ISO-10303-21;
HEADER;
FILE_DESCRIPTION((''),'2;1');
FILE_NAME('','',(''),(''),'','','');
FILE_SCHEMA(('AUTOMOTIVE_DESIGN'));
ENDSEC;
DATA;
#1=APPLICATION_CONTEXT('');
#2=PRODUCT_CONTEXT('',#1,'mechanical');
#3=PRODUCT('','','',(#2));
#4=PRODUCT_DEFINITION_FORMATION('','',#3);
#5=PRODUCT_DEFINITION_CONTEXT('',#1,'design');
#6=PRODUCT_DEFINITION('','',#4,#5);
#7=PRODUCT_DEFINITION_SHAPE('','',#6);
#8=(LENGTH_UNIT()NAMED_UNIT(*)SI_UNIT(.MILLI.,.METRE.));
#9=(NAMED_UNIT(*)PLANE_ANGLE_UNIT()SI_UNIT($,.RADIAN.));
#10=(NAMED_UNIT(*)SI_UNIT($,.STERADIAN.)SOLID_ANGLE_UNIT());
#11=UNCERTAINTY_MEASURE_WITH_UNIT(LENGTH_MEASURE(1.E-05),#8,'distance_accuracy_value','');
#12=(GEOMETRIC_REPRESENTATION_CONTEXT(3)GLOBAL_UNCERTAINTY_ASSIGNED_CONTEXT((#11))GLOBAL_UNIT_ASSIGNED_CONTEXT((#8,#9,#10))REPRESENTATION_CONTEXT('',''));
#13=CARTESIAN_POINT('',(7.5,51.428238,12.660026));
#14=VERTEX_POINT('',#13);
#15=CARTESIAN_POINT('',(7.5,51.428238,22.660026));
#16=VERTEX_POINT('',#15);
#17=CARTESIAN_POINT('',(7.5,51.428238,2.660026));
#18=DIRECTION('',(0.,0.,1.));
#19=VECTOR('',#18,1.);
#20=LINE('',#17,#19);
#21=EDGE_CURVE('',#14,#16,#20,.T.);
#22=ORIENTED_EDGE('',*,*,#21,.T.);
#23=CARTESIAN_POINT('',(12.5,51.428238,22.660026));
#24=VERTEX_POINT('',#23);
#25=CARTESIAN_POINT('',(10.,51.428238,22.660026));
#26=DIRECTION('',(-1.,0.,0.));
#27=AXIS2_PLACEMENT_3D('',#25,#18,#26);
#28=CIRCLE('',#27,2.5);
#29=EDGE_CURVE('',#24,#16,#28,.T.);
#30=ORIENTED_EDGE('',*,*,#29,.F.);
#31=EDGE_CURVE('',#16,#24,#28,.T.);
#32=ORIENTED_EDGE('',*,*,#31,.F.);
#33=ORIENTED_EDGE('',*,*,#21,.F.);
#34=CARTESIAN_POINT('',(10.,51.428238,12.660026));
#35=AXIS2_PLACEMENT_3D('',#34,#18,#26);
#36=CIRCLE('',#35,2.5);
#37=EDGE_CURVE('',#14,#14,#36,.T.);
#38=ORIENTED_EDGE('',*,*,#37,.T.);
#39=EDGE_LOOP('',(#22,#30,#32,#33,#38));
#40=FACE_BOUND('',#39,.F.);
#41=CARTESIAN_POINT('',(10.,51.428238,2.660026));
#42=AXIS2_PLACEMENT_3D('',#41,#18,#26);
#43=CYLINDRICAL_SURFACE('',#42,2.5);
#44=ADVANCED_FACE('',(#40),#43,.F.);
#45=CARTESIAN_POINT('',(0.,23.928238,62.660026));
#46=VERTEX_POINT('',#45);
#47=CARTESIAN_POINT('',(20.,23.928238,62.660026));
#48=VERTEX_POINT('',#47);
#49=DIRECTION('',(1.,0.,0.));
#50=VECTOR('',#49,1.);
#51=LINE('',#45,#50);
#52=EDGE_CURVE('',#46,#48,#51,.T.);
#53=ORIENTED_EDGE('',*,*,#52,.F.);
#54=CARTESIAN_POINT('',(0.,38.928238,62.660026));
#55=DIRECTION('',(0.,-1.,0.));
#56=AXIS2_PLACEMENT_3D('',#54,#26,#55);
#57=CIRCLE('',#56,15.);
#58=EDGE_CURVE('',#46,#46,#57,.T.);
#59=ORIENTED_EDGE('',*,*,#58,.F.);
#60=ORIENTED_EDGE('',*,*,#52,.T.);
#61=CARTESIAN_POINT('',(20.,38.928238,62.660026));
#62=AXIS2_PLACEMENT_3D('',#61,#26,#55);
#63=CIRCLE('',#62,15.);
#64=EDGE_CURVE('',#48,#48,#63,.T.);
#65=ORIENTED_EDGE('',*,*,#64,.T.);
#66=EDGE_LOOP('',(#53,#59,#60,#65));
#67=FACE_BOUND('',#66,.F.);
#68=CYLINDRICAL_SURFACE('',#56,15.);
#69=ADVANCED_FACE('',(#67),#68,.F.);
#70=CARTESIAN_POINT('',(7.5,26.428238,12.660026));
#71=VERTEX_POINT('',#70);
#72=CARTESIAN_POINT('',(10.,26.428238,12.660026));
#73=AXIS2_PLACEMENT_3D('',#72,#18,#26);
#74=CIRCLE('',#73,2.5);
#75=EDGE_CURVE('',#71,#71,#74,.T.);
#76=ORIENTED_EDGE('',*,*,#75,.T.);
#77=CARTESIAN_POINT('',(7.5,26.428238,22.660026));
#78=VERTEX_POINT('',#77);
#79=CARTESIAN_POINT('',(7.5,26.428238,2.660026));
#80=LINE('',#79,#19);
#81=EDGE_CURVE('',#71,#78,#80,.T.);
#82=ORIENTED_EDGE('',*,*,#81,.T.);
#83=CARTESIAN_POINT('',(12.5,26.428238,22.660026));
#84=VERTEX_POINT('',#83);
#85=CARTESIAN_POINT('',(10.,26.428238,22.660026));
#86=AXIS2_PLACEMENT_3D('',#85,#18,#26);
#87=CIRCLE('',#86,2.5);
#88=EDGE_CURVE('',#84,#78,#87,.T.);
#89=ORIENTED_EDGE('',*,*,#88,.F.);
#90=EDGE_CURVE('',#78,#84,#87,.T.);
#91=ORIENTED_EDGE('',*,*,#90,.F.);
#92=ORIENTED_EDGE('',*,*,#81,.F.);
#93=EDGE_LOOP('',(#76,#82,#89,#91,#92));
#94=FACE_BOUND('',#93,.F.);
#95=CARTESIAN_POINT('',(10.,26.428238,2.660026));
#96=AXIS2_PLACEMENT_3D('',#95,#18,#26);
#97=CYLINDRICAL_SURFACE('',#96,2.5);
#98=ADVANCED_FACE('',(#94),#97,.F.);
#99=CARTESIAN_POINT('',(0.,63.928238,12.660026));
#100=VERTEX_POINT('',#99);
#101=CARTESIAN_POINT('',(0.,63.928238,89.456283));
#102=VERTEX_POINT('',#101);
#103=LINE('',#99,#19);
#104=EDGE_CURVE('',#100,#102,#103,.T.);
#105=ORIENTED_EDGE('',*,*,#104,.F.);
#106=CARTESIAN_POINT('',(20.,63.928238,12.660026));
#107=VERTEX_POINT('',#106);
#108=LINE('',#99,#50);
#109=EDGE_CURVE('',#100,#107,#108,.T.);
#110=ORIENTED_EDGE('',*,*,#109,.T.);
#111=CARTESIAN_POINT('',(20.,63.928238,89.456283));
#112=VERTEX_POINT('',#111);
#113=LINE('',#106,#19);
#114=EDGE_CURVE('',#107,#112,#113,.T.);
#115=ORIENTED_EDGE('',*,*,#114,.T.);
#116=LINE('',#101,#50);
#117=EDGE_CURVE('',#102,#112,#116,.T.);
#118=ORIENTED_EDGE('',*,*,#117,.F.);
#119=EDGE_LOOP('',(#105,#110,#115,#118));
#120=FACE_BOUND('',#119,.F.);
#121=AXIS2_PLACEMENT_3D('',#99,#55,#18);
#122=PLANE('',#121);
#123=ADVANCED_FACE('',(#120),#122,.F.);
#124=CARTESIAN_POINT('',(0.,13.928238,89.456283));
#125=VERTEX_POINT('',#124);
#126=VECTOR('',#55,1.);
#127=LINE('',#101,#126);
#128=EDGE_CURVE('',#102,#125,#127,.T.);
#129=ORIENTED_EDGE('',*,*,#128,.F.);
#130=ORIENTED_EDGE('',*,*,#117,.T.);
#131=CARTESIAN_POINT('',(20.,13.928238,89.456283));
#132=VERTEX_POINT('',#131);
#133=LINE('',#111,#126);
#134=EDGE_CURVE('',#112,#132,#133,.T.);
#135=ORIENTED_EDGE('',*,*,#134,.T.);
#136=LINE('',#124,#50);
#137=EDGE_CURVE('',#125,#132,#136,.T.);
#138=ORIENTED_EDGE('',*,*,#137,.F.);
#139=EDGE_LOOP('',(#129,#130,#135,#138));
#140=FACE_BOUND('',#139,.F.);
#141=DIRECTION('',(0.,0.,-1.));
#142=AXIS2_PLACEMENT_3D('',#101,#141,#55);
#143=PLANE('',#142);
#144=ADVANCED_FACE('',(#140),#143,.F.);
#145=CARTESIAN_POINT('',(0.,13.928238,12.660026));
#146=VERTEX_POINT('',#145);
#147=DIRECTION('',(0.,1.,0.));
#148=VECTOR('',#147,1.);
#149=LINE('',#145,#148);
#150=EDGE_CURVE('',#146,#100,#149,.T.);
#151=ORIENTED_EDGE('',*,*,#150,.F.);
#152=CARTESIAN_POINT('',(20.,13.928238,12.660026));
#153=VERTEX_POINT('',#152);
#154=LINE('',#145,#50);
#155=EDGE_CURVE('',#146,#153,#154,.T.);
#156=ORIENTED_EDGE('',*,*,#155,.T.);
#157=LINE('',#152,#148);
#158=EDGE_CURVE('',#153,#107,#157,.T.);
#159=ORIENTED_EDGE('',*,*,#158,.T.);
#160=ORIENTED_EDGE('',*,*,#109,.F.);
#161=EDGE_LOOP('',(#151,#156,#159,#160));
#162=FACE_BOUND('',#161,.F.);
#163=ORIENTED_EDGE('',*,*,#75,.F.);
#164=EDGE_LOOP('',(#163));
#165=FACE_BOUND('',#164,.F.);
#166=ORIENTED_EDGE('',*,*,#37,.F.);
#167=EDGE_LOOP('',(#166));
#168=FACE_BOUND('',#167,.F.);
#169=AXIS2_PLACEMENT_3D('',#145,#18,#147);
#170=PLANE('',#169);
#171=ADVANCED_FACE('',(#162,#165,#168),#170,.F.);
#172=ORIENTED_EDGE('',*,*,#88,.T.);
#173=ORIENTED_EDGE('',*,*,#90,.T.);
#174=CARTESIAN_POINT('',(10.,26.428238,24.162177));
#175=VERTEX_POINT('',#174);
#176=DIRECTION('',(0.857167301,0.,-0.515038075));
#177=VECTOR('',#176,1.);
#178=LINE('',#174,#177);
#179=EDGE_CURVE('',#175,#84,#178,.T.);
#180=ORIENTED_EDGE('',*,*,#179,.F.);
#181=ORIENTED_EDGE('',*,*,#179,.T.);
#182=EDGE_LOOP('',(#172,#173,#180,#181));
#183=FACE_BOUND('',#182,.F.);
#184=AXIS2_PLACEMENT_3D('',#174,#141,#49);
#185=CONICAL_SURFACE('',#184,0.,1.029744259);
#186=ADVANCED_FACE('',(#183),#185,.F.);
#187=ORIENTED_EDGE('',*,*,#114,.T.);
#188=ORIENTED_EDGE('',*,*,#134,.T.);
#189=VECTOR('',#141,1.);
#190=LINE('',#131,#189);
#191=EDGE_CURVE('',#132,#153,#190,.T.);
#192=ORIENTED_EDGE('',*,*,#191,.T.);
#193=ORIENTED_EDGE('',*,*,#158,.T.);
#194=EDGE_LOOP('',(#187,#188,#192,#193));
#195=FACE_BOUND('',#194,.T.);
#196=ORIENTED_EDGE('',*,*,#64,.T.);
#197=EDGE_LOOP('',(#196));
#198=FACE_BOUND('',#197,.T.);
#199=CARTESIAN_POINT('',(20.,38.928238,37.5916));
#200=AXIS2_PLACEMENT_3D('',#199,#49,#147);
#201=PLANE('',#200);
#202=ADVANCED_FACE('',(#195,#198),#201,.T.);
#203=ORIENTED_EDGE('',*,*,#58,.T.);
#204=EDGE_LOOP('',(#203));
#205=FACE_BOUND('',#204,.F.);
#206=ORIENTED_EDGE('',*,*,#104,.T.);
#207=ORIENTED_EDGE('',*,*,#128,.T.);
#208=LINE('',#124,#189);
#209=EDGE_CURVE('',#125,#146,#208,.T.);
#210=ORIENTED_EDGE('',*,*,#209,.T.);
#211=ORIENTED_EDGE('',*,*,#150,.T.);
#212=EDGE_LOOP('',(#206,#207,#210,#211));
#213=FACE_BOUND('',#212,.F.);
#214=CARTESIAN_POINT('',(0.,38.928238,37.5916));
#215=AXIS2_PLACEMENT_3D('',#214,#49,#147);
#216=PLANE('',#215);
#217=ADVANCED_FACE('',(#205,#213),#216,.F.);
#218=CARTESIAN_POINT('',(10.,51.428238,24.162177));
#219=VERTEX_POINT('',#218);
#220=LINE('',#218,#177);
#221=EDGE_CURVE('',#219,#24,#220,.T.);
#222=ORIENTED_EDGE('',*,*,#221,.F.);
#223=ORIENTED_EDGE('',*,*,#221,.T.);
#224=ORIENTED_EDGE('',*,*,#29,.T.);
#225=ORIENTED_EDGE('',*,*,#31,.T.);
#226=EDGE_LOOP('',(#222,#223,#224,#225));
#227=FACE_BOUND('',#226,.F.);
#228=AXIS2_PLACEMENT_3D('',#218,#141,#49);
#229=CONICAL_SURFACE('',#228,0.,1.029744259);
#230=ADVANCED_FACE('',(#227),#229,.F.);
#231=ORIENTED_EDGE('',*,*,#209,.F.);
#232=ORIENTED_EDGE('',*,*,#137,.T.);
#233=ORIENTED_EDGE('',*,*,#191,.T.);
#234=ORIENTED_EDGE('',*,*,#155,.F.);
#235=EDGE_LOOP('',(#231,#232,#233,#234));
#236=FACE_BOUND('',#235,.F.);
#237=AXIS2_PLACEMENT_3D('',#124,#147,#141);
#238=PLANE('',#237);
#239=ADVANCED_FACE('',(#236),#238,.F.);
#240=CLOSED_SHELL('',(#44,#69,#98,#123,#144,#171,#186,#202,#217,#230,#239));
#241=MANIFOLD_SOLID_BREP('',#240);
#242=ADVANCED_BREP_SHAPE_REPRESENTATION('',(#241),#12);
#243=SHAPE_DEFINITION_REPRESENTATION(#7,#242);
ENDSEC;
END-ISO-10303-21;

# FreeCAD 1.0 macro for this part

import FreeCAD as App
import Part
import Sketcher

V = App.Vector
Q = App.Units.Quantity

doc = App.newDocument("Part")
body = doc.addObject("PartDesign::Body", "Body")

# Sketch on YZ plane
sketch1 = body.newObject("Sketcher::SketchObject", "Sketch")
sketch1.AttachmentSupport = (doc.getObject("YZ_Plane"), [""])
sketch1.MapMode = "FlatFace"
sketch1.addGeometry([
    Part.LineSegment(V(14, 13, 0), V(64, 13, 0)),  # 0
    Part.LineSegment(V(64, 13, 0), V(64, 89, 0)),  # 1
    Part.LineSegment(V(64, 89, 0), V(14, 89, 0)),  # 2
    Part.LineSegment(V(14, 89, 0), V(14, 13, 0)),  # 3
    Part.Circle(V(39, 63, 0), V(0, 0, 1), 15),  # 4
], False)
sketch1.addConstraint([
    Sketcher.Constraint("Coincident", 0, 2, 1, 1),
    Sketcher.Constraint("Coincident", 1, 2, 2, 1),
    Sketcher.Constraint("Coincident", 2, 2, 3, 1),
    Sketcher.Constraint("Coincident", 3, 2, 0, 1),
    Sketcher.Constraint("Horizontal", 0),
    Sketcher.Constraint("Vertical", 1),
    Sketcher.Constraint("Horizontal", 2),
    Sketcher.Constraint("Vertical", 3),
    Sketcher.Constraint("Diameter", 4, Q("30 mm")),
    Sketcher.Constraint("DistanceX", 0, 1, 0, 2, Q("50 mm")),
    Sketcher.Constraint("DistanceX", 4, 3, 0, 2, Q("25 mm")),
    Sketcher.Constraint("DistanceY", 0, 2, 4, 3, Q("50 mm")),
    Sketcher.Constraint("DistanceY", 1, 1, 1, 2, Q("76.796257 mm")),
    Sketcher.Constraint("DistanceX", -1, 1, 4, 3, Q("38.928238 mm")),
    Sketcher.Constraint("DistanceY", -1, 1, 4, 3, Q("62.660026 mm")),
])
pad1 = body.newObject("PartDesign::Pad", "Pad")
pad1.Profile = sketch1
pad1.Length = 20

# Sketch on XY plane
sketch2 = body.newObject("Sketcher::SketchObject", "Sketch001")
sketch2.AttachmentSupport = (doc.getObject("XY_Plane"), [""])
sketch2.MapMode = "FlatFace"
sketch2.AttachmentOffset = App.Placement(V(0, 0, 12.660026), App.Rotation())
sketch2.addGeometry([
    Part.Circle(V(10, 51.4, 0), V(0, 0, 1), 2.5),
    Part.Circle(V(10, 26.4, 0), V(0, 0, 1), 2.5),
], False)
sketch2.addConstraint([
    Sketcher.Constraint("Equal", 0, 1),
    Sketcher.Constraint("Vertical", 0, 3, 1, 3),
    Sketcher.Constraint("Diameter", 0, Q("5 mm")),
    Sketcher.Constraint("DistanceX", -1, 1, 0, 3, Q("10 mm")),
    Sketcher.Constraint("DistanceY", 1, 3, 0, 3, Q("25 mm")),
    Sketcher.Constraint("DistanceY", -1, 1, 0, 3, Q("51.428238 mm")),
])
doc.recompute()
hole = body.newObject("PartDesign::Hole", "Hole")
hole.Profile = sketch2
hole.ThreadType = "None"
hole.Diameter = 5
hole.DepthType = "Dimension"
hole.Depth = 10
hole.DrillPoint = "Angled"
hole.DrillPointAngle = 118
hole.Reversed = True

doc.recompute()
